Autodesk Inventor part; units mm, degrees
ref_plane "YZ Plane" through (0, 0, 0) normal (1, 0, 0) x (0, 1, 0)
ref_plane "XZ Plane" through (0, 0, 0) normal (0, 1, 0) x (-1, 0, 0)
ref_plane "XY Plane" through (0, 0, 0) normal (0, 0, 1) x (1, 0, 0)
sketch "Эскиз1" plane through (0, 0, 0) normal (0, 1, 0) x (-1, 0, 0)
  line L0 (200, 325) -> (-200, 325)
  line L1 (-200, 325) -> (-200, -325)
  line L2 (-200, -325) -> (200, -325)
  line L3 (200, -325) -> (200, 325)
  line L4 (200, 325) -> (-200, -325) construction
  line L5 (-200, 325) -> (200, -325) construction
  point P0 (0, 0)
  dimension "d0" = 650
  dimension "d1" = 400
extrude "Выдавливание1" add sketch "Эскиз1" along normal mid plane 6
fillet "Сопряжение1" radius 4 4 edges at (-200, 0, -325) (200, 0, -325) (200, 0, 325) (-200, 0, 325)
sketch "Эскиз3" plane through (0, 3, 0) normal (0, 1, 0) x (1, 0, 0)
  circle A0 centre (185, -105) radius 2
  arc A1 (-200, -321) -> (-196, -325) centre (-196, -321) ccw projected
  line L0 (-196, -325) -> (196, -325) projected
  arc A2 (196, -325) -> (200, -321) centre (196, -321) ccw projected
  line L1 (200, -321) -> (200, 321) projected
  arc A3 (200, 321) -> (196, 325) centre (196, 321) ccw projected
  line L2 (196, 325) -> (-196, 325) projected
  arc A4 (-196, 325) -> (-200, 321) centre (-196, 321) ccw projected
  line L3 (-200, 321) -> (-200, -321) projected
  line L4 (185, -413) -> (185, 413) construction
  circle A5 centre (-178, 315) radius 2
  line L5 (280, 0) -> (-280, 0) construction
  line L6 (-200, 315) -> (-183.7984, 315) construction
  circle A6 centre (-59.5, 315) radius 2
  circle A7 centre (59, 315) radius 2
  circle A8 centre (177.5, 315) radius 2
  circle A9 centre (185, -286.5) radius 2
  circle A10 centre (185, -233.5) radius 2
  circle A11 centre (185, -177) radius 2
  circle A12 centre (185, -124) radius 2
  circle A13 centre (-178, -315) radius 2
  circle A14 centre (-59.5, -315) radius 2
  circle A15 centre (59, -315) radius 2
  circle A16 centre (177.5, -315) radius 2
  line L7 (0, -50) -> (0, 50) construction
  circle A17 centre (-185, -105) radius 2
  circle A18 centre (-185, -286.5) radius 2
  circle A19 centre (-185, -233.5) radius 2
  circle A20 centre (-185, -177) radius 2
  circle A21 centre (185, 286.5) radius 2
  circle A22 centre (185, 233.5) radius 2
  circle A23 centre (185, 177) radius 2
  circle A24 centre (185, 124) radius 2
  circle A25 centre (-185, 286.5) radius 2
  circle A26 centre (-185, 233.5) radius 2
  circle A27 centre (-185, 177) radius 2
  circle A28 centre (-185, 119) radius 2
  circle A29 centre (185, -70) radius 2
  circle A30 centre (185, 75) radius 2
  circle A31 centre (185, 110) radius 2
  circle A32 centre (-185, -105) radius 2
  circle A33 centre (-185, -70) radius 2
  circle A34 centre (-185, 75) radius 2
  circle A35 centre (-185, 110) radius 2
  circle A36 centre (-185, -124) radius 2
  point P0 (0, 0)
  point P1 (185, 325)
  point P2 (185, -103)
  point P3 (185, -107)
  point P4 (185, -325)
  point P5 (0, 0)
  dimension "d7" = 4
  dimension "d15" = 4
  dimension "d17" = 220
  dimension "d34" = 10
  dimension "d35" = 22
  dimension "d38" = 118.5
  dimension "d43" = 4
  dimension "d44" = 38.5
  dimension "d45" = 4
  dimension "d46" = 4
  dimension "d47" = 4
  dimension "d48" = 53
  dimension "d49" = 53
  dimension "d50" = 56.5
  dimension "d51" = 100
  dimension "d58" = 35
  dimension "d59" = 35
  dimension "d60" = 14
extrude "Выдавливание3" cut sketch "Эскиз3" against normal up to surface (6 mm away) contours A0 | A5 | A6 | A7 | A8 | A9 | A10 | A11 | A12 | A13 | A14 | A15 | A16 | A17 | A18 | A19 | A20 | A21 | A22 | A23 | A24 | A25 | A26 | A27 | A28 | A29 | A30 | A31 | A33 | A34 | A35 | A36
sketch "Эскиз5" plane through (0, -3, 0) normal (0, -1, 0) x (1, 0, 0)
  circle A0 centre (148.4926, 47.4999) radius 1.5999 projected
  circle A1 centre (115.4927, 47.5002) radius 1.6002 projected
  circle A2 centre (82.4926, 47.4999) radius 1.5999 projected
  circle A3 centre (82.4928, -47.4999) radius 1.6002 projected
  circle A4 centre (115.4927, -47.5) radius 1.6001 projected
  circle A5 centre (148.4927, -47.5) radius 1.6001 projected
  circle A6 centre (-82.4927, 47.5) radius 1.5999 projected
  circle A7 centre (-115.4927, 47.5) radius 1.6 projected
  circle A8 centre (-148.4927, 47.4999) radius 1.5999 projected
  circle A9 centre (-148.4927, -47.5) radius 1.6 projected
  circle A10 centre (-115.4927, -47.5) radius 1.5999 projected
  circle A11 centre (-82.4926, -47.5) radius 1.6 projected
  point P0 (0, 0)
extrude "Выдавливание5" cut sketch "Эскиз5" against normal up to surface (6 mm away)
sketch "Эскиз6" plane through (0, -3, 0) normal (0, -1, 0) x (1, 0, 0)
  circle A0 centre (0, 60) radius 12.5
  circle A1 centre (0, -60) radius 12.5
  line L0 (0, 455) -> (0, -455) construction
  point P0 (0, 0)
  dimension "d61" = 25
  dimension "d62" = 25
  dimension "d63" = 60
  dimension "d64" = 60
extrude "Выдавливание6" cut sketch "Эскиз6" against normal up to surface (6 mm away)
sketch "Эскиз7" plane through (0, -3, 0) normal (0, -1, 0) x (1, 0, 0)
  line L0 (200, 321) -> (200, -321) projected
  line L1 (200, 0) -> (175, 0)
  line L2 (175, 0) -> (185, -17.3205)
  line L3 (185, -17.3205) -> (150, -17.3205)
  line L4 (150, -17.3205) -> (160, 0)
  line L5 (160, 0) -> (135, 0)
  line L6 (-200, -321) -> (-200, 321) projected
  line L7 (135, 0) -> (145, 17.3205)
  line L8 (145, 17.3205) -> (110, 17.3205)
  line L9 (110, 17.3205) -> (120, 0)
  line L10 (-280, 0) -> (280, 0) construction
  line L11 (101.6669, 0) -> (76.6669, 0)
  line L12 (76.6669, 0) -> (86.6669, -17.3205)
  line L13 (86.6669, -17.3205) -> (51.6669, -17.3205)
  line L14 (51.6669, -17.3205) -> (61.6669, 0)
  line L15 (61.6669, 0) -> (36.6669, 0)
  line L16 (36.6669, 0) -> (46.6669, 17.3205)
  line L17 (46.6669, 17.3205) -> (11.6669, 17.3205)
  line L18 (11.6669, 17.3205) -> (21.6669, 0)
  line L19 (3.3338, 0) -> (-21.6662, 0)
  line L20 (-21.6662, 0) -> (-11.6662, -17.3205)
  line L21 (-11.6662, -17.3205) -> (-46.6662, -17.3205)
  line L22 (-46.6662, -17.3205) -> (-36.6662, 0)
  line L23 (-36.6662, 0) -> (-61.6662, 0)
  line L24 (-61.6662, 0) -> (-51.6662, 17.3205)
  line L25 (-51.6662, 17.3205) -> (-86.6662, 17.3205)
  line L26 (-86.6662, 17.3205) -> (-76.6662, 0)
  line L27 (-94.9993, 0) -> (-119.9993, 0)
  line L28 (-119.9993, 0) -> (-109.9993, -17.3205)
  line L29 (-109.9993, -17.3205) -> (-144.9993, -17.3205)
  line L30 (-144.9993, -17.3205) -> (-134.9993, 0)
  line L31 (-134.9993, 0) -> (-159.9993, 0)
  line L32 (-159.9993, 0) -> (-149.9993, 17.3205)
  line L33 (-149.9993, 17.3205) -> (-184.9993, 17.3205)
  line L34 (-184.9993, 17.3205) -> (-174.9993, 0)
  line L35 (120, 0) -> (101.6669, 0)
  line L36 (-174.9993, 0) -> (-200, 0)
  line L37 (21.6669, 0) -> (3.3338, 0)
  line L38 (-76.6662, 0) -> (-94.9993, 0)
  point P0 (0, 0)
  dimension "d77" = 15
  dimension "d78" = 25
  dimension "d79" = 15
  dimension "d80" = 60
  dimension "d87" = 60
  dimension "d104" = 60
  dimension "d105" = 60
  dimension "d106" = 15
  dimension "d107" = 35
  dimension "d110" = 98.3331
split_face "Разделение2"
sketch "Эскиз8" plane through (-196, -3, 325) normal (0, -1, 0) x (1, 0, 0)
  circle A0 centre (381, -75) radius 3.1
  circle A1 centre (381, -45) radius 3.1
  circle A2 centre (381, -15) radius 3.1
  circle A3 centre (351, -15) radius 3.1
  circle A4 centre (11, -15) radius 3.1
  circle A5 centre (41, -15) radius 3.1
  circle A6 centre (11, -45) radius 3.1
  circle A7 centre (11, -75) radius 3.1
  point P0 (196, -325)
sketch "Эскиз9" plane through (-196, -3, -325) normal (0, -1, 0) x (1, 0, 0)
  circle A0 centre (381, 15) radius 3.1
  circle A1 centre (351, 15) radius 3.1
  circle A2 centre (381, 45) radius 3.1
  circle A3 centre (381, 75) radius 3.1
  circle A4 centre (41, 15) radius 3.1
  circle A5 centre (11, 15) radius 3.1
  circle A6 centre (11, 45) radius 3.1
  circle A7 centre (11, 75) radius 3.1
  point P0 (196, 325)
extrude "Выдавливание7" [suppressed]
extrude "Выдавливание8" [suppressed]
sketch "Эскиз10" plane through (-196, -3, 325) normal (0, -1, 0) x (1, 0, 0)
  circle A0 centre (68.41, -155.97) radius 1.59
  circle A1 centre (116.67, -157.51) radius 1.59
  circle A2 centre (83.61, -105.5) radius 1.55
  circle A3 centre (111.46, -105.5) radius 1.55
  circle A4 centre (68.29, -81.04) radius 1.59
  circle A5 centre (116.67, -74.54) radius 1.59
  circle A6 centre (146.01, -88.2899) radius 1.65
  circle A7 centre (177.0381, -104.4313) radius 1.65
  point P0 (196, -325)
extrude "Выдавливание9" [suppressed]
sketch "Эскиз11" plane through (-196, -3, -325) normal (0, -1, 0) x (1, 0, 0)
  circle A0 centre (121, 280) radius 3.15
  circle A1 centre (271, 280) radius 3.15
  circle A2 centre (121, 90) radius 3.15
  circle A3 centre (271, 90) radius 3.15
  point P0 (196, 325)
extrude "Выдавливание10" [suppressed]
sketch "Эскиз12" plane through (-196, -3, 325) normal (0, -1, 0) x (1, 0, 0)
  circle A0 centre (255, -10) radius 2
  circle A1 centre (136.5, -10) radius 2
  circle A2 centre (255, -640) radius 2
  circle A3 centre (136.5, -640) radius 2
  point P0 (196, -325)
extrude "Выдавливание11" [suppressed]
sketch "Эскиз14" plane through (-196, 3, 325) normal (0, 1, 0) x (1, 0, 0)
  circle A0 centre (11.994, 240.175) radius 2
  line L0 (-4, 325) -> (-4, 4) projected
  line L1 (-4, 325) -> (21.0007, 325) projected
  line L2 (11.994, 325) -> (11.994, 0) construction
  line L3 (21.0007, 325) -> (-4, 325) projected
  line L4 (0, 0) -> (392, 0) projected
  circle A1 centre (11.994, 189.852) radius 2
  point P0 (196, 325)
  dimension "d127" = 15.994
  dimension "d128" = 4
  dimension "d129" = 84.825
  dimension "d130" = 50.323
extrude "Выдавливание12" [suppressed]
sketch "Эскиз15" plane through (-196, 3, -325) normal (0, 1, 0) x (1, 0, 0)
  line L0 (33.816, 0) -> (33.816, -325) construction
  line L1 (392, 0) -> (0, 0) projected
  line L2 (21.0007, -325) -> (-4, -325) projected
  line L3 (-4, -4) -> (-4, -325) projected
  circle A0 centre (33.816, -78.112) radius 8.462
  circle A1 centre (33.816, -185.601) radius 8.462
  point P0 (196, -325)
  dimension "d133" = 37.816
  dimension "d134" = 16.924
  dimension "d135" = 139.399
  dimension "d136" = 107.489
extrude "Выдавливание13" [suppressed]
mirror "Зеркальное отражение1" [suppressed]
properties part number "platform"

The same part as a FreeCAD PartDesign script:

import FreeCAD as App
import Part
import Sketcher

V = App.Vector
Q = App.Units.Quantity


def edges_at(feature, points):
    """Names of the edges that pass closest to the given points."""
    edges = feature.Shape.Edges
    near = lambda p: min(range(len(edges)), key=lambda i: edges[i].distToShape(Part.Vertex(*p))[0])
    return sorted({f"Edge{near(p) + 1}" for p in points})


def add_polygon(sketch, points):
    """Adds a closed chain of lines whose ends are joined by coincident constraints."""
    first, n = sketch.GeometryCount, len(points)
    for a, b in zip(points, points[1:] + points[:1]):
        sketch.addGeometry(Part.LineSegment(App.Vector(*a, 0), App.Vector(*b, 0)), False)
    for i in range(n):
        sketch.addConstraint(Sketcher.Constraint("Coincident", first + i, 2, first + (i + 1) % n, 1))

doc = App.newDocument("Part")
body = doc.addObject("PartDesign::Body", "Body")

# Sketch on XZ plane
sketch1 = body.newObject("Sketcher::SketchObject", "Sketch")
sketch1.AttachmentSupport = (doc.getObject("XZ_Plane"), [""])
sketch1.MapMode = "FlatFace"
add_polygon(sketch1, [(-200, -325), (-200, 325), (200, 325), (200, -325)])  # lines 0-3
sketch1.addConstraint([
    Sketcher.Constraint("Vertical", 0),
    Sketcher.Constraint("Horizontal", 1),
    Sketcher.Constraint("Vertical", 2),
    Sketcher.Constraint("Horizontal", 3),
    Sketcher.Constraint("Symmetric", 0, 2, 2, 2, -1, 1),
    Sketcher.Constraint("DistanceX", 1, 1, 1, 2, Q("400 mm")),
    Sketcher.Constraint("DistanceY", 0, 1, 0, 2, Q("650 mm")),
])
pad1 = body.newObject("PartDesign::Pad", "Pad")
pad1.Profile = sketch1
pad1.Length = 6
pad1.Midplane = True
doc.recompute()

fillet = body.newObject("PartDesign::Fillet", "Fillet")
fillet.Base = (pad1, edges_at(pad1, [
    (-200, 0, -325),
    (200, 0, -325),
    (200, 0, 325),
    (-200, 0, 325),
]))
fillet.Radius = 4

# Sketch on XZ plane
sketch2 = body.newObject("Sketcher::SketchObject", "Sketch001")
sketch2.AttachmentSupport = (doc.getObject("XZ_Plane"), [""])
sketch2.MapMode = "FlatFace"
sketch2.AttachmentOffset = App.Placement(V(0, 0, -3), App.Rotation())
sketch2.addGeometry([
    Part.Circle(V(185, 105, 0), V(0, 0, 1), 2),  # 0
    Part.Circle(V(-178, -315, 0), V(0, 0, 1), 2),  # 1
    Part.Circle(V(-59.5, -315, 0), V(0, 0, 1), 2),  # 2
    Part.Circle(V(59, -315, 0), V(0, 0, 1), 2),  # 3
    Part.Circle(V(177.5, -315, 0), V(0, 0, 1), 2),  # 4
    Part.Circle(V(185, 286.5, 0), V(0, 0, 1), 2),  # 5
    Part.Circle(V(185, 233.5, 0), V(0, 0, 1), 2),  # 6
    Part.Circle(V(185, 177, 0), V(0, 0, 1), 2),  # 7
    Part.Circle(V(185, 124, 0), V(0, 0, 1), 2),  # 8
    Part.Circle(V(-178, 315, 0), V(0, 0, 1), 2),  # 9
    Part.Circle(V(-59.5, 315, 0), V(0, 0, 1), 2),  # 10
    Part.Circle(V(59, 315, 0), V(0, 0, 1), 2),  # 11
    Part.Circle(V(177.5, 315, 0), V(0, 0, 1), 2),  # 12
    Part.Circle(V(-185, 105, 0), V(0, 0, 1), 2),  # 13
    Part.Circle(V(-185, 286.5, 0), V(0, 0, 1), 2),  # 14
    Part.Circle(V(-185, 233.5, 0), V(0, 0, 1), 2),  # 15
    Part.Circle(V(-185, 177, 0), V(0, 0, 1), 2),  # 16
    Part.Circle(V(185, -286.5, 0), V(0, 0, 1), 2),  # 17
    Part.Circle(V(185, -233.5, 0), V(0, 0, 1), 2),  # 18
    Part.Circle(V(185, -177, 0), V(0, 0, 1), 2),  # 19
    Part.Circle(V(185, -124, 0), V(0, 0, 1), 2),  # 20
    Part.Circle(V(-185, -286.5, 0), V(0, 0, 1), 2),  # 21
    Part.Circle(V(-185, -233.5, 0), V(0, 0, 1), 2),  # 22
    Part.Circle(V(-185, -177, 0), V(0, 0, 1), 2),  # 23
    Part.Circle(V(-185, -119, 0), V(0, 0, 1), 2),  # 24
    Part.Circle(V(185, 70, 0), V(0, 0, 1), 2),  # 25
    Part.Circle(V(185, -75, 0), V(0, 0, 1), 2),  # 26
    Part.Circle(V(185, -110, 0), V(0, 0, 1), 2),  # 27
    Part.Circle(V(-185, 70, 0), V(0, 0, 1), 2),  # 28
    Part.Circle(V(-185, -75, 0), V(0, 0, 1), 2),  # 29
    Part.Circle(V(-185, -110, 0), V(0, 0, 1), 2),  # 30
    Part.Circle(V(-185, 124, 0), V(0, 0, 1), 2),  # 31
], False)
sketch2.addConstraint([
    Sketcher.Constraint("Equal", 0, 1),
    Sketcher.Constraint("Equal", 1, 2),
    Sketcher.Constraint("Equal", 2, 3),
    Sketcher.Constraint("Equal", 3, 4),
    Sketcher.Constraint("Equal", 4, 5),
    Sketcher.Constraint("Equal", 5, 6),
    Sketcher.Constraint("Equal", 6, 7),
    Sketcher.Constraint("Equal", 7, 8),
    Sketcher.Constraint("Equal", 8, 9),
    Sketcher.Constraint("Equal", 9, 10),
    Sketcher.Constraint("Equal", 10, 11),
    Sketcher.Constraint("Equal", 11, 12),
    Sketcher.Constraint("Equal", 12, 13),
    Sketcher.Constraint("Equal", 13, 14),
    Sketcher.Constraint("Equal", 14, 15),
    Sketcher.Constraint("Equal", 15, 16),
    Sketcher.Constraint("Equal", 16, 17),
    Sketcher.Constraint("Equal", 17, 18),
    Sketcher.Constraint("Equal", 18, 19),
    Sketcher.Constraint("Equal", 19, 20),
    Sketcher.Constraint("Equal", 20, 21),
    Sketcher.Constraint("Equal", 21, 22),
    Sketcher.Constraint("Equal", 22, 23),
    Sketcher.Constraint("Equal", 23, 24),
    Sketcher.Constraint("Equal", 24, 25),
    Sketcher.Constraint("Equal", 25, 26),
    Sketcher.Constraint("Equal", 26, 27),
    Sketcher.Constraint("Equal", 27, 28),
    Sketcher.Constraint("Equal", 28, 29),
    Sketcher.Constraint("Equal", 29, 30),
    Sketcher.Constraint("Equal", 30, 31),
    Sketcher.Constraint("Symmetric", 14, 3, 17, 3, -1, 1),
    Sketcher.Constraint("Symmetric", 15, 3, 18, 3, -1, 1),
    Sketcher.Constraint("Symmetric", 16, 3, 19, 3, -1, 1),
    Sketcher.Constraint("Symmetric", 5, 3, 21, 3, -1, 1),
    Sketcher.Constraint("Symmetric", 6, 3, 22, 3, -1, 1),
    Sketcher.Constraint("Symmetric", 7, 3, 23, 3, -1, 1),
    Sketcher.Constraint("Symmetric", 20, 3, 31, 3, -1, 1),
    Sketcher.Constraint("Symmetric", 0, 3, 13, 3, -2),
    Sketcher.Constraint("Symmetric", 5, 3, 14, 3, -2),
    Sketcher.Constraint("Symmetric", 6, 3, 15, 3, -2),
    Sketcher.Constraint("Symmetric", 7, 3, 16, 3, -2),
    Sketcher.Constraint("Symmetric", 25, 3, 28, 3, -2),
    Sketcher.Constraint("Symmetric", 26, 3, 29, 3, -2),
    Sketcher.Constraint("Symmetric", 27, 3, 30, 3, -2),
    Sketcher.Constraint("Symmetric", 8, 3, 31, 3, -2),
    Sketcher.Constraint("Symmetric", 1, 3, 9, 3, -1),
    Sketcher.Constraint("Symmetric", 2, 3, 10, 3, -1),
    Sketcher.Constraint("Symmetric", 3, 3, 11, 3, -1),
    Sketcher.Constraint("Symmetric", 4, 3, 12, 3, -1),
    Sketcher.Constraint("Horizontal", 1, 3, 2, 3),
    Sketcher.Constraint("Horizontal", 2, 3, 3, 3),
    Sketcher.Constraint("Horizontal", 3, 3, 4, 3),
    Sketcher.Constraint("Vertical", 0, 3, 5, 3),
    Sketcher.Constraint("Vertical", 5, 3, 6, 3),
    Sketcher.Constraint("Vertical", 6, 3, 7, 3),
    Sketcher.Constraint("Vertical", 7, 3, 8, 3),
    Sketcher.Constraint("Vertical", 23, 3, 24, 3),
    Sketcher.Constraint("Vertical", 20, 3, 25, 3),
    Sketcher.Constraint("Vertical", 25, 3, 26, 3),
    Sketcher.Constraint("Vertical", 26, 3, 27, 3),
    Sketcher.Constraint("Diameter", 0, Q("4 mm")),
    Sketcher.Constraint("DistanceY", 6, 3, 5, 3, Q("53 mm")),
    Sketcher.Constraint("DistanceY", 8, 3, 7, 3, Q("53 mm")),
    Sketcher.Constraint("DistanceY", 25, 3, 0, 3, Q("35 mm")),
    Sketcher.Constraint("DistanceY", 20, 3, 27, 3, Q("14 mm")),
    Sketcher.Constraint("DistanceY", 27, 3, 26, 3, Q("35 mm")),
    Sketcher.Constraint("DistanceX", 1, 3, 2, 3, Q("118.5 mm")),
    Sketcher.Constraint("DistanceX", 2, 3, 3, 3, Q("118.5 mm")),
    Sketcher.Constraint("DistanceX", 3, 3, 4, 3, Q("118.5 mm")),
    Sketcher.Constraint("DistanceY", 7, 3, 6, 3, Q("56.5 mm")),
    Sketcher.Constraint("DistanceX", -1, 1, 0, 3, Q("185 mm")),
    Sketcher.Constraint("DistanceY", -1, 1, 0, 3, Q("105 mm")),
    Sketcher.Constraint("DistanceX", 1, 3, -1, 1, Q("178 mm")),
    Sketcher.Constraint("DistanceY", 1, 3, -1, 1, Q("315 mm")),
    Sketcher.Constraint("DistanceY", -1, 1, 7, 3, Q("177 mm")),
    Sketcher.Constraint("DistanceY", 24, 3, -1, 1, Q("119 mm")),
])
pocket1 = body.newObject("PartDesign::Pocket", "Pocket")
pocket1.Profile = sketch2
pocket1.Length = 6
pocket1.Reversed = True

# Sketch on XZ plane
sketch3 = body.newObject("Sketcher::SketchObject", "Sketch002")
sketch3.AttachmentSupport = (doc.getObject("XZ_Plane"), [""])
sketch3.MapMode = "FlatFace"
sketch3.AttachmentOffset = App.Placement(V(0, 0, 3), App.Rotation())
sketch3.addGeometry([
    Part.Circle(V(148.4926, 47.4999, 0), V(0, 0, 1), 1.5999),  # 0
    Part.Circle(V(115.4927, 47.5002, 0), V(0, 0, 1), 1.6002),  # 1
    Part.Circle(V(82.4926, 47.4999, 0), V(0, 0, 1), 1.5999),  # 2
    Part.Circle(V(82.4928, -47.4999, 0), V(0, 0, 1), 1.6002),  # 3
    Part.Circle(V(115.4927, -47.5, 0), V(0, 0, 1), 1.6001),  # 4
    Part.Circle(V(148.4927, -47.5, 0), V(0, 0, 1), 1.6001),  # 5
    Part.Circle(V(-82.4927, 47.5, 0), V(0, 0, 1), 1.5999),  # 6
    Part.Circle(V(-115.4927, 47.5, 0), V(0, 0, 1), 1.6),  # 7
    Part.Circle(V(-148.4927, 47.4999, 0), V(0, 0, 1), 1.5999),  # 8
    Part.Circle(V(-148.4927, -47.5, 0), V(0, 0, 1), 1.6),  # 9
    Part.Circle(V(-115.4927, -47.5, 0), V(0, 0, 1), 1.5999),  # 10
    Part.Circle(V(-82.4926, -47.5, 0), V(0, 0, 1), 1.6),  # 11
], False)
sketch3.addConstraint([
    Sketcher.Constraint("Equal", 0, 2),
    Sketcher.Constraint("Equal", 1, 3),
    Sketcher.Constraint("Equal", 3, 4),
    Sketcher.Constraint("Equal", 4, 5),
    Sketcher.Constraint("Equal", 5, 6),
    Sketcher.Constraint("Equal", 6, 7),
    Sketcher.Constraint("Equal", 7, 8),
    Sketcher.Constraint("Equal", 8, 9),
    Sketcher.Constraint("Equal", 9, 10),
    Sketcher.Constraint("Equal", 10, 11),
    Sketcher.Constraint("Symmetric", 3, 3, 6, 3, -1, 1),
    Sketcher.Constraint("Symmetric", 4, 3, 7, 3, -1, 1),
    Sketcher.Constraint("Symmetric", 5, 3, 8, 3, -1, 1),
    Sketcher.Constraint("Symmetric", 0, 3, 9, 3, -1, 1),
    Sketcher.Constraint("Symmetric", 1, 3, 10, 3, -1, 1),
    Sketcher.Constraint("Symmetric", 2, 3, 11, 3, -1, 1),
    Sketcher.Constraint("Symmetric", 2, 3, 6, 3, -2),
    Sketcher.Constraint("Symmetric", 1, 3, 7, 3, -2),
    Sketcher.Constraint("Symmetric", 0, 3, 8, 3, -2),
    Sketcher.Constraint("Horizontal", 0, 3, 2, 3),
    Sketcher.Constraint("Horizontal", 3, 3, 4, 3),
    Sketcher.Constraint("Diameter", 7, Q("3.2 mm")),
    Sketcher.Constraint("DistanceX", 1, 3, 0, 3, Q("33 mm")),
    Sketcher.Constraint("DistanceX", 2, 3, 1, 3, Q("33 mm")),
    Sketcher.Constraint("DistanceY", 3, 3, 1, 3, Q("95 mm")),
    Sketcher.Constraint("Diameter", 0, Q("3.1998 mm")),
    Sketcher.Constraint("DistanceX", -1, 1, 0, 3, Q("148.4926 mm")),
])
pocket2 = body.newObject("PartDesign::Pocket", "Pocket001")
pocket2.Profile = sketch3
pocket2.Length = 6

# Sketch on XZ plane
sketch4 = body.newObject("Sketcher::SketchObject", "Sketch003")
sketch4.AttachmentSupport = (doc.getObject("XZ_Plane"), [""])
sketch4.MapMode = "FlatFace"
sketch4.AttachmentOffset = App.Placement(V(0, 0, 3), App.Rotation())
sketch4.addGeometry([
    Part.Circle(V(0, 60, 0), V(0, 0, 1), 12.5),
    Part.Circle(V(0, -60, 0), V(0, 0, 1), 12.5),
], False)
sketch4.addConstraint([
    Sketcher.Constraint("Equal", 0, 1),
    Sketcher.Constraint("Symmetric", 0, 3, 1, 3, -1, 1),
    Sketcher.Constraint("PointOnObject", 0, 3, -2),
    Sketcher.Constraint("Diameter", 0, Q("25 mm")),
    Sketcher.Constraint("DistanceY", -1, 1, 0, 3, Q("60 mm")),
])
pocket3 = body.newObject("PartDesign::Pocket", "Pocket002")
pocket3.Profile = sketch4
pocket3.Length = 6

doc.recompute()
